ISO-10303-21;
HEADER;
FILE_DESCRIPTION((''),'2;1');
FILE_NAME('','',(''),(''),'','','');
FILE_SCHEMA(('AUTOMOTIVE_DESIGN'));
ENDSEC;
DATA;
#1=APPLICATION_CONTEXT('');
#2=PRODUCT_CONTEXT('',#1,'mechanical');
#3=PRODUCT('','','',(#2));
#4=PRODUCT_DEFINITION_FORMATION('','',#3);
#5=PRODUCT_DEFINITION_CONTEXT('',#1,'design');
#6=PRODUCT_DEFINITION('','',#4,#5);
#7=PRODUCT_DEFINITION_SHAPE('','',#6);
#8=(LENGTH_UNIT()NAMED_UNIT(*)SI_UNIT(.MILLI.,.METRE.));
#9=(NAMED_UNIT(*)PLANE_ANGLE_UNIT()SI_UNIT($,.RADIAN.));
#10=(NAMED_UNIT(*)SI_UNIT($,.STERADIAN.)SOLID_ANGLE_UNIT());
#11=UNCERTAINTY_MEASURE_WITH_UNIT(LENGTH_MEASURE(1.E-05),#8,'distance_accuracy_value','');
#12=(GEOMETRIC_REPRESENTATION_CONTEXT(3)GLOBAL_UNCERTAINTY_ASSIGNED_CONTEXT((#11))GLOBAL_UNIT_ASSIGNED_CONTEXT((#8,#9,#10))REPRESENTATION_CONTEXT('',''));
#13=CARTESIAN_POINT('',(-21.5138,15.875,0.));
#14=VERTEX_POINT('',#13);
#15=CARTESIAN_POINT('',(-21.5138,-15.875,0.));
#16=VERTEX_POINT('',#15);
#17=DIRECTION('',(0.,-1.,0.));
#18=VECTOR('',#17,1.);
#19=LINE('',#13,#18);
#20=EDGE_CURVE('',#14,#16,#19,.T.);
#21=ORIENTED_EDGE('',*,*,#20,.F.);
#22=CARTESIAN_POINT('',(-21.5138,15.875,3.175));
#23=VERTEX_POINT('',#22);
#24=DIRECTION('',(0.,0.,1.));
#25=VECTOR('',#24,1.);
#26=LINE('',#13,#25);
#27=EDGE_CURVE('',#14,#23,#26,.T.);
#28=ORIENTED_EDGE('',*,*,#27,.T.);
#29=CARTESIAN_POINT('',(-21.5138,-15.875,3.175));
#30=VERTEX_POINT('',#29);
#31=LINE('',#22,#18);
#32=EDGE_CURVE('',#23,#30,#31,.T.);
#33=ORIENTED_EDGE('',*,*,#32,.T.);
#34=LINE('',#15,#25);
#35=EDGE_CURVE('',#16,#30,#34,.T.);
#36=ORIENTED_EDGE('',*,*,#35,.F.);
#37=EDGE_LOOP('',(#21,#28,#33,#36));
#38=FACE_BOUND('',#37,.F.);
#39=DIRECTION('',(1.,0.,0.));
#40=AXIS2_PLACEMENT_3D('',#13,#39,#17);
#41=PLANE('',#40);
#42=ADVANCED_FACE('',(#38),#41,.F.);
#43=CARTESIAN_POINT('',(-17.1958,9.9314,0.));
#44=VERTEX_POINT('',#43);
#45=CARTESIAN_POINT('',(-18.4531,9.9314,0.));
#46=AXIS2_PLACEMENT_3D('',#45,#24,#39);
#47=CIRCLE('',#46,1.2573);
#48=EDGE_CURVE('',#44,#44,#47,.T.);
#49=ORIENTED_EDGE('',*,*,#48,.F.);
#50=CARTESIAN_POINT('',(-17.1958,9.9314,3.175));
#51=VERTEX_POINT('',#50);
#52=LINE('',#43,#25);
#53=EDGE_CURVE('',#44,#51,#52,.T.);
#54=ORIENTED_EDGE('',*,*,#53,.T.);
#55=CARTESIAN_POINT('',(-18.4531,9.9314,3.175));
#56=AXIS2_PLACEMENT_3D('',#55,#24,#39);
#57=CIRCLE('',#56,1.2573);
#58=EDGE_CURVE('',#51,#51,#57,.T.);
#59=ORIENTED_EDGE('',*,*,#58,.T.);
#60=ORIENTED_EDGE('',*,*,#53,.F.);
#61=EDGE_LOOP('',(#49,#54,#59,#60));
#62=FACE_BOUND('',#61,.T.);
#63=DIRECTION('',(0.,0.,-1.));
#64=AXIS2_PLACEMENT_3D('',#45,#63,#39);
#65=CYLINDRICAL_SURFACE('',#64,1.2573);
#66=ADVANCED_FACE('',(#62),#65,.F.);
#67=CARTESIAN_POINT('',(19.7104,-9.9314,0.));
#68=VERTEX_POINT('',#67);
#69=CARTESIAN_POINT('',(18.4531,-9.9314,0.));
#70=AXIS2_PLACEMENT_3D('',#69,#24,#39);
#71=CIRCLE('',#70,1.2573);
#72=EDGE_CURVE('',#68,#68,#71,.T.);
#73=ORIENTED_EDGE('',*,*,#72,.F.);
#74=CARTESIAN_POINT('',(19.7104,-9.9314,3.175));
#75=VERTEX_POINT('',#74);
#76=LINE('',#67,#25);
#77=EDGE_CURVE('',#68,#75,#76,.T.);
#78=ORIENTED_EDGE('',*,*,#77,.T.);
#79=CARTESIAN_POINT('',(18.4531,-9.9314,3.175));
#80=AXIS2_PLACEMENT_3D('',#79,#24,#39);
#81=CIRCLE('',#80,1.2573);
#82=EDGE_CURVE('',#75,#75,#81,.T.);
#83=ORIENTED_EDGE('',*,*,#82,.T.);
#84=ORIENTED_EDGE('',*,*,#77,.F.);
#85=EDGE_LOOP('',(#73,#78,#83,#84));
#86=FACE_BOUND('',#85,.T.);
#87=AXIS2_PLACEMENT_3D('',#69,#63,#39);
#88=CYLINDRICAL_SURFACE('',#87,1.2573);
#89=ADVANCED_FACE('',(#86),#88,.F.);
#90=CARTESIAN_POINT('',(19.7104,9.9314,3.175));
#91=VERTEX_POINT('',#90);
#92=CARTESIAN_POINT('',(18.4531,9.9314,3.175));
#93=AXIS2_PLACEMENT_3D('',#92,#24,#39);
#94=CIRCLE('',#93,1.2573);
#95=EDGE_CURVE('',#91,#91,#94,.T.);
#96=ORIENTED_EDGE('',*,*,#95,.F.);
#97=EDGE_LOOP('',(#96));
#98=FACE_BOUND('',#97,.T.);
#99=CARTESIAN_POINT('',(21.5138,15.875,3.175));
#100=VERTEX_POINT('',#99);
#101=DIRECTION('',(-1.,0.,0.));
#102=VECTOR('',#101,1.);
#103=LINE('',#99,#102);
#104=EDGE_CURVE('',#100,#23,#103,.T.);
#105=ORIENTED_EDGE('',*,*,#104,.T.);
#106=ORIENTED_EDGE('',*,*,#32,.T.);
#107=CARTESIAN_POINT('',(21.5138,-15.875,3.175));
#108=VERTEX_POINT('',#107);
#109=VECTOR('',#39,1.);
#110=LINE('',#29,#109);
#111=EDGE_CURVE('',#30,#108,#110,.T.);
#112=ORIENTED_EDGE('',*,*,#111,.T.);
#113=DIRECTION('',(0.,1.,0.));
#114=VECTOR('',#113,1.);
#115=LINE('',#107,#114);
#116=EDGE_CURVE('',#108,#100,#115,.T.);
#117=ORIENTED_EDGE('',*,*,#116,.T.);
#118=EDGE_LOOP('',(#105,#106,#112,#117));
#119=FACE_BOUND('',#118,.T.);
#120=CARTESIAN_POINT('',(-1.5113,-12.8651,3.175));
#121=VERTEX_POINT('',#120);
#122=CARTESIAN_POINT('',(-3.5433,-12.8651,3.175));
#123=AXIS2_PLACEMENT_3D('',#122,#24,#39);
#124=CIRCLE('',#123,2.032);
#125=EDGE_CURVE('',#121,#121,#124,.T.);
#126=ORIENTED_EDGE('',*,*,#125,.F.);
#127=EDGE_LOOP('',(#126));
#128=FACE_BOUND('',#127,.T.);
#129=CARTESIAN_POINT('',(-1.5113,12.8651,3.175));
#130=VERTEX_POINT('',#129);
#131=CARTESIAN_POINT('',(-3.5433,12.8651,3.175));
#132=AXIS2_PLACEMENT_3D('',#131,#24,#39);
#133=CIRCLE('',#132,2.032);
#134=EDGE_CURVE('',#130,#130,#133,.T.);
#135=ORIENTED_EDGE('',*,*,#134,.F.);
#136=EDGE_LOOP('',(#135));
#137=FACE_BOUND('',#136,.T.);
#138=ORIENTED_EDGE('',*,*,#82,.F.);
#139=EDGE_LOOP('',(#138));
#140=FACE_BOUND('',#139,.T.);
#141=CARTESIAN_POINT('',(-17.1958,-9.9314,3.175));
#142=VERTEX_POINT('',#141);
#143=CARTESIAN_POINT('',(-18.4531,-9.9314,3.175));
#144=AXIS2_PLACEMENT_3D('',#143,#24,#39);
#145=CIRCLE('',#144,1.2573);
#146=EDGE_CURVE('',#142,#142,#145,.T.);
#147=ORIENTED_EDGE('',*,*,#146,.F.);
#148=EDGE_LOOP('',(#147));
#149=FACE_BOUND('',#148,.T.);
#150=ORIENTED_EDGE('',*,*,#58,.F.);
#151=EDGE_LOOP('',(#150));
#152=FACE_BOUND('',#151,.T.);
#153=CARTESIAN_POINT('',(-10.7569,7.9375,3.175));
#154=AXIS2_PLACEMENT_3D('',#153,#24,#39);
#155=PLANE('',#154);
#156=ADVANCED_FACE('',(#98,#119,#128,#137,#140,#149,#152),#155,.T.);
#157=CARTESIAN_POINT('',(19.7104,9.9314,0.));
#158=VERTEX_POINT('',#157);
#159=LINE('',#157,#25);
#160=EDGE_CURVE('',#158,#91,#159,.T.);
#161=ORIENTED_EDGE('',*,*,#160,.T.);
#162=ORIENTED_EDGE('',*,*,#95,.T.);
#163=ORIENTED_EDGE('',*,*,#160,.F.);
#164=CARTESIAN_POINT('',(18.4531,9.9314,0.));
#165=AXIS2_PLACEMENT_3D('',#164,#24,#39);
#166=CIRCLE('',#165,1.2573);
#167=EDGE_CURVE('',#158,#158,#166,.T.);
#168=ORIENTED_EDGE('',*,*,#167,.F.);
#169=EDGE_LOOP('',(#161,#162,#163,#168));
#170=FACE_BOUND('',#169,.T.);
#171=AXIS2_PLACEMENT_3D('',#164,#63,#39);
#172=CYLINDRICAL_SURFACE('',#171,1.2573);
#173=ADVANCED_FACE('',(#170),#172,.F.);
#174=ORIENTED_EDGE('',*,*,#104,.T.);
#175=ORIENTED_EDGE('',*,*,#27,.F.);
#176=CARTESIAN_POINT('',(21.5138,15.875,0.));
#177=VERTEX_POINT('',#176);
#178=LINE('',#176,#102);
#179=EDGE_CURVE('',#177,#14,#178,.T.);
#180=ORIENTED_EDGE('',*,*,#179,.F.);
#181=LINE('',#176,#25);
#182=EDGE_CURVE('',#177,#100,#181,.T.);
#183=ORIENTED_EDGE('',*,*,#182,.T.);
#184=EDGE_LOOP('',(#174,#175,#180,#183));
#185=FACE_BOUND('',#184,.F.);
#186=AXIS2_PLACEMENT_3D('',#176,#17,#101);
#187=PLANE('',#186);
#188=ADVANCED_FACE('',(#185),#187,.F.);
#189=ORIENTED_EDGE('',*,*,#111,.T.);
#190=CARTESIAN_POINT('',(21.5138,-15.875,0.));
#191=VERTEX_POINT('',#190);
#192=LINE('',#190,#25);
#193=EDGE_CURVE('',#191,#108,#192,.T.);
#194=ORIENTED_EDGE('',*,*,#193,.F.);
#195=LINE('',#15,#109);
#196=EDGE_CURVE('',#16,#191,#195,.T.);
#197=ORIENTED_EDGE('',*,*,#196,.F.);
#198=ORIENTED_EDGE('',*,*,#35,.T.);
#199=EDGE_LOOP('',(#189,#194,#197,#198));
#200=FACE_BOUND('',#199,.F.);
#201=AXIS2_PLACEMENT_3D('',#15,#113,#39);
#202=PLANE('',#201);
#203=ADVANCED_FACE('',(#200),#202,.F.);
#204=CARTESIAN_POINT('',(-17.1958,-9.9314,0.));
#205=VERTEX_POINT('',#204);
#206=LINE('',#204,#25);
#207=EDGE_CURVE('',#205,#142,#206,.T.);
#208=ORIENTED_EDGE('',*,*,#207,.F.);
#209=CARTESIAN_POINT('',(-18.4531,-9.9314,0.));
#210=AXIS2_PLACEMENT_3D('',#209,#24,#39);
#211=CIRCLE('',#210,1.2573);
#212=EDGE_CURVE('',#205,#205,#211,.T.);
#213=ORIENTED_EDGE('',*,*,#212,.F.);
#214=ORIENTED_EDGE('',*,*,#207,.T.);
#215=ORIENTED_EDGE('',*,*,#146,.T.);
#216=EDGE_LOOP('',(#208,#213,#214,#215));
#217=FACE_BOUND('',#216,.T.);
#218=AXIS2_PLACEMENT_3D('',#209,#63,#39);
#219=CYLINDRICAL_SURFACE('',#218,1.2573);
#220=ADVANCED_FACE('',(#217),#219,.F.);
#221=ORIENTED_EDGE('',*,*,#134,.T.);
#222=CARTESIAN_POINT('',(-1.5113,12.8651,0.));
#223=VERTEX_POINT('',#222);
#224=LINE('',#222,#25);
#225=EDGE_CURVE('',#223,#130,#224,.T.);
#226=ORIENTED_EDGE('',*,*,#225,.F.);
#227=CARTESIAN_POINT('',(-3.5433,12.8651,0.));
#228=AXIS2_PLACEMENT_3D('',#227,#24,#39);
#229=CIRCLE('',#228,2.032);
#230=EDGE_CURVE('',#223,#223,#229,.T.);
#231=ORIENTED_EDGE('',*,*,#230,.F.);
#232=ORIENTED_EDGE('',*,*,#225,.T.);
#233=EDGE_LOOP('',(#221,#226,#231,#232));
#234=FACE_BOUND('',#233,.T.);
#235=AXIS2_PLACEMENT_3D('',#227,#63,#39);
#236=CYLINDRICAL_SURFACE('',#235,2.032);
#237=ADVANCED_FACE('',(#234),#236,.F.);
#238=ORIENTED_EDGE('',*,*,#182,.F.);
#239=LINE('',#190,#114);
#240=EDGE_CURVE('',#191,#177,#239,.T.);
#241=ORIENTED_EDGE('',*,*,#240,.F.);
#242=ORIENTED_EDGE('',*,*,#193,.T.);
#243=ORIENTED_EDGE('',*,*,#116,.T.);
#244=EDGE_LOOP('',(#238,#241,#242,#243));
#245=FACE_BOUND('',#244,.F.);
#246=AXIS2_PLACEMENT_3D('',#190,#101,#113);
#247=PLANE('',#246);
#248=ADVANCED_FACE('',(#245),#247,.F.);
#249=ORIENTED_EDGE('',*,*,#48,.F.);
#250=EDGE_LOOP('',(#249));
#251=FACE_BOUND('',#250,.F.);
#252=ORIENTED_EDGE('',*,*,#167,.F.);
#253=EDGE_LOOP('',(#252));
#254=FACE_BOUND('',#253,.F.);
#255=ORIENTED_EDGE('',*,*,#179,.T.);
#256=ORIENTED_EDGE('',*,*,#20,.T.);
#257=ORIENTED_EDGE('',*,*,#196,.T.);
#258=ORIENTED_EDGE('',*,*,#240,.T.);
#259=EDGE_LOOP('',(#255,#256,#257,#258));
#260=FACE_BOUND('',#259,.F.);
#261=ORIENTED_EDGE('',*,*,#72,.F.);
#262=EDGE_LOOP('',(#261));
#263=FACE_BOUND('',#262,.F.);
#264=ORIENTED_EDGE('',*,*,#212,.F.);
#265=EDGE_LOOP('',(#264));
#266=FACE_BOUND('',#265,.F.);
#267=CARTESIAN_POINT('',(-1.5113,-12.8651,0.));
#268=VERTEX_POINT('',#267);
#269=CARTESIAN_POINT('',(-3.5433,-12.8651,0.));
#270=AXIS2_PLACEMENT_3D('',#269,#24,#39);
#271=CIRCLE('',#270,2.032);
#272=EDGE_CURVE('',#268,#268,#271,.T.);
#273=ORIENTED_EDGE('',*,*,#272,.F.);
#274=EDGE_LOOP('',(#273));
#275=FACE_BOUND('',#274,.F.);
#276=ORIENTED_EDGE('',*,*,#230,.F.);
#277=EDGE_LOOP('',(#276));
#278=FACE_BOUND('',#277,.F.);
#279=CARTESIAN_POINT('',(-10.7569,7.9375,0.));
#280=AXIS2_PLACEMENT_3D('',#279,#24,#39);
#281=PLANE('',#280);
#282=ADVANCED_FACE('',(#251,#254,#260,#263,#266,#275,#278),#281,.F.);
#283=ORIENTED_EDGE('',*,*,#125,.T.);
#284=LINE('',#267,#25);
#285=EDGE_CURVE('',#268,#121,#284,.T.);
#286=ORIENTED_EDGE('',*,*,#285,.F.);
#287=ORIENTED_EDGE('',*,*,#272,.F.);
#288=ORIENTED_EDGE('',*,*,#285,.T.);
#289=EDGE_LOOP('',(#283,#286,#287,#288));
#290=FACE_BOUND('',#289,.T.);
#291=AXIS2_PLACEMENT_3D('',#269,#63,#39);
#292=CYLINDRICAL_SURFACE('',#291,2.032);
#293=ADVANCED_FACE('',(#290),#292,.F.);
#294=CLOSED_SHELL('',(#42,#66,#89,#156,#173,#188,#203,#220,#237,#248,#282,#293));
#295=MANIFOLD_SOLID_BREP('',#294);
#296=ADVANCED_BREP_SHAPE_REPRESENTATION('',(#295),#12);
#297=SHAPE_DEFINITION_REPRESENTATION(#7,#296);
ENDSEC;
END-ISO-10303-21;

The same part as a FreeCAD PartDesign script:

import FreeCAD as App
import Part
import Sketcher

V = App.Vector
Q = App.Units.Quantity

doc = App.newDocument("Part")
body = doc.addObject("PartDesign::Body", "Body")

# Sketch on XY plane
sketch1 = body.newObject("Sketcher::SketchObject", "Sketch")
sketch1.AttachmentSupport = (doc.getObject("XY_Plane"), [""])
sketch1.MapMode = "FlatFace"
sketch1.addGeometry([
    Part.LineSegment(V(-21.5, 15.9, 0), V(-21.5, -15.9, 0)),  # 0
    Part.LineSegment(V(-21.5, -15.9, 0), V(21.5, -15.9, 0)),  # 1
    Part.LineSegment(V(21.5, -15.9, 0), V(21.5, 15.9, 0)),  # 2
    Part.LineSegment(V(21.5, 15.9, 0), V(-21.5, 15.9, 0)),  # 3
    Part.Circle(V(-18.5, -9.9, 0), V(0, 0, 1), 1.3),  # 4
    Part.Circle(V(-3.5, -12.9, 0), V(0, 0, 1), 2),  # 5
    Part.Circle(V(18.5, -9.9, 0), V(0, 0, 1), 1.3),  # 6
    Part.Circle(V(-18.5, 9.9, 0), V(0, 0, 1), 1.3),  # 7
    Part.Circle(V(-3.5, 12.9, 0), V(0, 0, 1), 2),  # 8
    Part.Circle(V(18.5, 9.9, 0), V(0, 0, 1), 1.3),  # 9
], False)
sketch1.addConstraint([
    Sketcher.Constraint("Coincident", 0, 2, 1, 1),
    Sketcher.Constraint("Coincident", 1, 2, 2, 1),
    Sketcher.Constraint("Coincident", 2, 2, 3, 1),
    Sketcher.Constraint("Coincident", 3, 2, 0, 1),
    Sketcher.Constraint("Vertical", 0),
    Sketcher.Constraint("Horizontal", 1),
    Sketcher.Constraint("Vertical", 2),
    Sketcher.Constraint("Horizontal", 3),
    Sketcher.Constraint("Equal", 4, 6),
    Sketcher.Constraint("Equal", 6, 7),
    Sketcher.Constraint("Equal", 5, 8),
    Sketcher.Constraint("Equal", 7, 9),
    Sketcher.Constraint("Symmetric", 6, 3, 7, 3, -1, 1),
    Sketcher.Constraint("Symmetric", 4, 3, 9, 3, -1, 1),
    Sketcher.Constraint("Symmetric", 0, 2, 2, 2, -1, 1),
    Sketcher.Constraint("Symmetric", 4, 3, 6, 3, -2),
    Sketcher.Constraint("Symmetric", 5, 3, 8, 3, -1),
    Sketcher.Constraint("Diameter", 5, Q("0.16 in")),
    Sketcher.Constraint("Diameter", 4, Q("0.099 in")),
    Sketcher.Constraint("DistanceY", 0, 2, 0, 1, Q("1.25 in")),
    Sketcher.Constraint("DistanceX", 1, 1, 1, 2, Q("1.694 in")),
    Sketcher.Constraint("DistanceY", 4, 3, -1, 1, Q("0.391 in")),
    Sketcher.Constraint("DistanceX", 4, 3, 5, 3, Q("0.587 in")),
    Sketcher.Constraint("DistanceX", 5, 3, 6, 3, Q("0.866 in")),
    Sketcher.Constraint("DistanceY", 5, 3, 8, 3, Q("1.013 in")),
])
pad1 = body.newObject("PartDesign::Pad", "Pad")
pad1.Profile = sketch1
pad1.Length = Q("0.125 in")

doc.recompute()
